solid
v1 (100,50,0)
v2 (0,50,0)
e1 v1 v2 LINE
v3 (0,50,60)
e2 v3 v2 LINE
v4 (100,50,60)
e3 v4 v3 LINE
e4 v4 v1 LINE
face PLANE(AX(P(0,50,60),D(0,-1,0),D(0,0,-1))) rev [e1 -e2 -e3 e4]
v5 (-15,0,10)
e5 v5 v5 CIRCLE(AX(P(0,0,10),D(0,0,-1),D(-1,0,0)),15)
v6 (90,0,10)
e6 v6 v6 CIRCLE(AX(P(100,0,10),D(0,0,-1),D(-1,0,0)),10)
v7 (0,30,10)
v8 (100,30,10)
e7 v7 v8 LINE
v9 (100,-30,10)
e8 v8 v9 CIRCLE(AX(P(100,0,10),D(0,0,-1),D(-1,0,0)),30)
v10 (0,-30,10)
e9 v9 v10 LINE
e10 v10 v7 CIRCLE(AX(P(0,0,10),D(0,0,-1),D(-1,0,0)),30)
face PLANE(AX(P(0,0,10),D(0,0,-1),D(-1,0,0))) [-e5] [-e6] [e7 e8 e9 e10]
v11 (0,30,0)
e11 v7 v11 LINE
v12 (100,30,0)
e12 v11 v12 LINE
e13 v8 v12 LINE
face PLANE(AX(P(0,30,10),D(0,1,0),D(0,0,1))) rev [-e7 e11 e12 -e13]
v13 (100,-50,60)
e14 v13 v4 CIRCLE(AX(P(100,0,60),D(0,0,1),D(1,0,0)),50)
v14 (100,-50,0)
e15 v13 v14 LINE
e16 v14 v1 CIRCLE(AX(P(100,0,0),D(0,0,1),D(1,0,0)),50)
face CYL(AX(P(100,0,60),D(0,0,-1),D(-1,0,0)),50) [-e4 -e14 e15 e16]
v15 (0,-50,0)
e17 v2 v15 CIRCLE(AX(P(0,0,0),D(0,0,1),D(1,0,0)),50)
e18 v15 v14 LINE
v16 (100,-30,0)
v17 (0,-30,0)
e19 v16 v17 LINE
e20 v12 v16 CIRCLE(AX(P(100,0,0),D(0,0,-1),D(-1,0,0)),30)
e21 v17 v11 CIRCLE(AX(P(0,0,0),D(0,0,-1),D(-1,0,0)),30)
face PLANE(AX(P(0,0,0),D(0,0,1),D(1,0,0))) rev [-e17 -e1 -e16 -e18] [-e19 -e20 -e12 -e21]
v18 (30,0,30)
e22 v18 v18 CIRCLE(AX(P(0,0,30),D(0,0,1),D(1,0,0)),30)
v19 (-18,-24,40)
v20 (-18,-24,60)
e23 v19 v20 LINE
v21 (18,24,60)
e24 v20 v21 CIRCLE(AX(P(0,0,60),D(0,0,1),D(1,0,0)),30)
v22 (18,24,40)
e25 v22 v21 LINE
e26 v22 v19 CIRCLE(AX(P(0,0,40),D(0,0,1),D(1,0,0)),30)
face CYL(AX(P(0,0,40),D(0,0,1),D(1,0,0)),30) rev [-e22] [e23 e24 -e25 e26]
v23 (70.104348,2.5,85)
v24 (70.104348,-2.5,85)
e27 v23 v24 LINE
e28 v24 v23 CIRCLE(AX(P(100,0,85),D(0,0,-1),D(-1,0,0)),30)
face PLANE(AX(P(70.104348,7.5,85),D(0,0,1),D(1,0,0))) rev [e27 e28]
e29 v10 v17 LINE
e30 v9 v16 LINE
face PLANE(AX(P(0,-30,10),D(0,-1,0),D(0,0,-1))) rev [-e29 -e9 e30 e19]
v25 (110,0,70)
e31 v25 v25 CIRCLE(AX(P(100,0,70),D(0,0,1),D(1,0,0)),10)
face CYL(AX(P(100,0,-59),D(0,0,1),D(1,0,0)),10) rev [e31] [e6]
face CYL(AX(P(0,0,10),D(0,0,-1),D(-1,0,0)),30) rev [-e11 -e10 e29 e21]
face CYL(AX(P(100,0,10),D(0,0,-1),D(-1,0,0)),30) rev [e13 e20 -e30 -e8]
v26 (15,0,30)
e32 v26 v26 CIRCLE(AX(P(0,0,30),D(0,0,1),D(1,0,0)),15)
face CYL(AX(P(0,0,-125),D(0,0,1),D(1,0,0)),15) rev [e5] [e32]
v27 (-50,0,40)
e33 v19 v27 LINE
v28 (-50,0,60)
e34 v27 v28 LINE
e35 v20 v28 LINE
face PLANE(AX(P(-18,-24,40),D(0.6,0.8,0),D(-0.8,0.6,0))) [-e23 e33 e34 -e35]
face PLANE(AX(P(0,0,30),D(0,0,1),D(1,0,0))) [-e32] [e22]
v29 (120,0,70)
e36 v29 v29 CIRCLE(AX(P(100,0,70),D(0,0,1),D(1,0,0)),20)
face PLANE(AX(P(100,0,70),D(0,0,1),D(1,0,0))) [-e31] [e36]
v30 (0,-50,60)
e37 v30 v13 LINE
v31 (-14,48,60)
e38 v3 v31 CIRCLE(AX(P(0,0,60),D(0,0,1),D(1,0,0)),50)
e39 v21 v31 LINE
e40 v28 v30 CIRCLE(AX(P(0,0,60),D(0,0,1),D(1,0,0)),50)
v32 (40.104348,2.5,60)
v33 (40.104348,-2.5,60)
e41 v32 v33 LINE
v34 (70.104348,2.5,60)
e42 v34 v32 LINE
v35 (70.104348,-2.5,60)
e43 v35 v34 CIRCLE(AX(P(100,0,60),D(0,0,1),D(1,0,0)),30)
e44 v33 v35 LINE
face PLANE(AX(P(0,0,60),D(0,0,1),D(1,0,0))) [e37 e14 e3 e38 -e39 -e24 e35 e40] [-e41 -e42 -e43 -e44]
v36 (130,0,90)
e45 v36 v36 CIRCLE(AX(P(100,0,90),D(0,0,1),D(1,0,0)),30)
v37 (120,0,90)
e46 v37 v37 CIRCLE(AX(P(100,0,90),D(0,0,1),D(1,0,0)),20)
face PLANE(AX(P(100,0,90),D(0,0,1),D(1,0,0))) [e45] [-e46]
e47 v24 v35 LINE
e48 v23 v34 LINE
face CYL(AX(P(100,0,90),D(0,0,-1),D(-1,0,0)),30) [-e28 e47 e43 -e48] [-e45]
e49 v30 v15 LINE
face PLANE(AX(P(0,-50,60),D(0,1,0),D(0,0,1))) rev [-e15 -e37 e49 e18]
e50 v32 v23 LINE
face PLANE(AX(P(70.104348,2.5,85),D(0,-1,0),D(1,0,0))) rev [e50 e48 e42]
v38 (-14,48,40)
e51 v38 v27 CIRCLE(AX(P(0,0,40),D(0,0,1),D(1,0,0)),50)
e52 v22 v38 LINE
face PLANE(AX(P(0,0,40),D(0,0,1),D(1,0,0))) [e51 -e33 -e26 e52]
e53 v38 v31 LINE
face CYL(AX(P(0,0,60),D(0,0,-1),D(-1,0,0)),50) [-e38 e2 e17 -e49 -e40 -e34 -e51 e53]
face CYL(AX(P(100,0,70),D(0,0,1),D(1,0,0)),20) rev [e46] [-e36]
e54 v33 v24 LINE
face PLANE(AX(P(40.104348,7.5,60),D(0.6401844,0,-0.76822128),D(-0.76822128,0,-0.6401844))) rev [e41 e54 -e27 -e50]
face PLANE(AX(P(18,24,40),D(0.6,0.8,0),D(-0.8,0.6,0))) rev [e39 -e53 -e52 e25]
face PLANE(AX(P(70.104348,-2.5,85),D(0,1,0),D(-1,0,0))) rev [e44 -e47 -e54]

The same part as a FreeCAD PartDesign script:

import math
import FreeCAD as App
import Part
import Sketcher

V = App.Vector
Q = App.Units.Quantity

doc = App.newDocument("Part")
params = doc.addObject("Spreadsheet::Sheet", "Params")
for row, (alias, value) in enumerate([
    ("sketch1_radius", "50 mm"),
    ("sketch1_width", "100 mm"),
    ("pad1_length", "60 mm"),
    ("sketch2_radius", "30 mm"),
    ("sketch2_width", "100 mm"),
    ("pocket1_length", "10 mm"),
    ("sketch3_diameter", "60 mm"),
    ("pad2_length", "30 mm"),
    ("sketch4_diameter", "40 mm"),
    ("pocket2_length", "20 mm"),
    ("sketch5_diameter", "20 mm"),
    ("pocket3_length", "129 mm"),
    ("sketch6_width", "30 mm"),
    ("sketch6_height", "5 mm"),
    ("pad3_length", "25 mm"),
    ("sketch7_radius", "50 mm"),
    ("sketch7_radius2", "30 mm"),
    ("pocket4_length", "20 mm"),
    ("sketch8_diameter", "60 mm"),
    ("pocket5_length", "10 mm"),
    ("sketch9_diameter", "30 mm"),
    ("pocket6_length", "155 mm"),
    ("sketch10_width", "30 mm"),
    ("sketch10_height", "25 mm"),
    ("pocket7_length", "10 mm"),
], start=1):
    params.set(f"A{row}", alias)
    params.set(f"B{row}", "=" + value)
    params.setAlias(f"B{row}", alias)

body = doc.addObject("PartDesign::Body", "Body")

# Sketch on XY plane
sketch1 = doc.addObject("Sketcher::SketchObject", "Sketch")
body.addObject(sketch1)
sketch1.AttachmentSupport = (doc.XY_Plane, [""])
sketch1.MapMode = "FlatFace"
sketch1.addGeometry([
    Part.LineSegment(V(100, 50, 0), V(0, 50, 0)),
    Part.ArcOfCircle(Part.Circle(V(0, 0, 0), V(0, 0, 1), 50), math.radians(90), math.radians(270)),
    Part.LineSegment(V(0, -50, 0), V(100, -50, 0)),
    Part.ArcOfCircle(Part.Circle(V(100, 0, 0), V(0, 0, 1), 50), math.radians(-90), math.radians(90)),
], False)
sketch1.addConstraint([
    Sketcher.Constraint("Tangent", 0, 2, 1, 1),
    Sketcher.Constraint("Tangent", 1, 2, 2, 1),
    Sketcher.Constraint("Tangent", 2, 2, 3, 1),
    Sketcher.Constraint("Tangent", 3, 2, 0, 1),
    Sketcher.Constraint("Horizontal", 0),
    Sketcher.Constraint("Horizontal", 2),
    Sketcher.Constraint("Coincident", 1, 3, -1, 1),
    Sketcher.Constraint("Radius", 1, Q("50 mm")),
    Sketcher.Constraint("DistanceX", 0, 2, 0, 1, Q("100 mm")),
])
sketch1.setExpression("Constraints[7]", "Params.sketch1_radius")
sketch1.setExpression("Constraints[8]", "Params.sketch1_width")
pad1 = doc.addObject("PartDesign::Pad", "Pad")
body.addObject(pad1)
pad1.Profile = sketch1
pad1.setExpression("Length", "Params.pad1_length")

# Sketch on XY plane
sketch2 = doc.addObject("Sketcher::SketchObject", "Sketch001")
body.addObject(sketch2)
sketch2.AttachmentSupport = (doc.XY_Plane, [""])
sketch2.MapMode = "FlatFace"
sketch2.addGeometry([
    Part.LineSegment(V(100, -30, 0), V(0, -30, 0)),
    Part.ArcOfCircle(Part.Circle(V(0, 0, 0), V(0, 0, 1), 30), math.radians(90), math.radians(270)),
    Part.LineSegment(V(0, 30, 0), V(100, 30, 0)),
    Part.ArcOfCircle(Part.Circle(V(100, 0, 0), V(0, 0, 1), 30), math.radians(-90), math.radians(90)),
], False)
sketch2.addConstraint([
    Sketcher.Constraint("Tangent", 0, 2, 1, 2),
    Sketcher.Constraint("Tangent", 1, 1, 2, 1),
    Sketcher.Constraint("Tangent", 2, 2, 3, 2),
    Sketcher.Constraint("Tangent", 3, 1, 0, 1),
    Sketcher.Constraint("Horizontal", 0),
    Sketcher.Constraint("Horizontal", 2),
    Sketcher.Constraint("Coincident", 1, 3, -1, 1),
    Sketcher.Constraint("Radius", 1, Q("30 mm")),
    Sketcher.Constraint("DistanceX", 0, 2, 0, 1, Q("100 mm")),
])
sketch2.setExpression("Constraints[7]", "Params.sketch2_radius")
sketch2.setExpression("Constraints[8]", "Params.sketch2_width")
pocket1 = doc.addObject("PartDesign::Pocket", "Pocket")
body.addObject(pocket1)
pocket1.Profile = sketch2
pocket1.setExpression("Length", "Params.pocket1_length")
pocket1.Reversed = True

# Sketch on XY plane
sketch3 = doc.addObject("Sketcher::SketchObject", "Sketch002")
body.addObject(sketch3)
sketch3.AttachmentSupport = (doc.XY_Plane, [""])
sketch3.MapMode = "FlatFace"
sketch3.AttachmentOffset = App.Placement(V(0, 0, 60), App.Rotation())
sketch3.addGeometry(Part.Circle(V(100, 0, 0), V(0, 0, 1), 30), False)
sketch3.addConstraint([
    Sketcher.Constraint("PointOnObject", 0, 3, -1),
    Sketcher.Constraint("Diameter", 0, Q("60 mm")),
    Sketcher.Constraint("DistanceX", -1, 1, 0, 3, Q("100 mm")),
])
sketch3.setExpression("Constraints[1]", "Params.sketch3_diameter")
pad2 = doc.addObject("PartDesign::Pad", "Pad001")
body.addObject(pad2)
pad2.Profile = sketch3
pad2.setExpression("Length", "Params.pad2_length")

# Sketch on XY plane
sketch4 = doc.addObject("Sketcher::SketchObject", "Sketch003")
body.addObject(sketch4)
sketch4.AttachmentSupport = (doc.XY_Plane, [""])
sketch4.MapMode = "FlatFace"
sketch4.AttachmentOffset = App.Placement(V(0, 0, 90), App.Rotation())
sketch4.addGeometry(Part.Circle(V(100, 0, 0), V(0, 0, 1), 20), False)
sketch4.addConstraint([
    Sketcher.Constraint("PointOnObject", 0, 3, -1),
    Sketcher.Constraint("Diameter", 0, Q("40 mm")),
    Sketcher.Constraint("DistanceX", -1, 1, 0, 3, Q("100 mm")),
])
sketch4.setExpression("Constraints[1]", "Params.sketch4_diameter")
pocket2 = doc.addObject("PartDesign::Pocket", "Pocket001")
body.addObject(pocket2)
pocket2.Profile = sketch4
pocket2.setExpression("Length", "Params.pocket2_length")

# Sketch on XY plane
sketch5 = doc.addObject("Sketcher::SketchObject", "Sketch004")
body.addObject(sketch5)
sketch5.AttachmentSupport = (doc.XY_Plane, [""])
sketch5.MapMode = "FlatFace"
sketch5.AttachmentOffset = App.Placement(V(0, 0, 70), App.Rotation())
sketch5.addGeometry(Part.Circle(V(100, 0, 0), V(0, 0, 1), 10), False)
sketch5.addConstraint([
    Sketcher.Constraint("PointOnObject", 0, 3, -1),
    Sketcher.Constraint("Diameter", 0, Q("20 mm")),
    Sketcher.Constraint("DistanceX", -1, 1, 0, 3, Q("100 mm")),
])
sketch5.setExpression("Constraints[1]", "Params.sketch5_diameter")
pocket3 = doc.addObject("PartDesign::Pocket", "Pocket002")
body.addObject(pocket3)
pocket3.Profile = sketch5
pocket3.setExpression("Length", "Params.pocket3_length")

# Sketch on XY plane
sketch6 = doc.addObject("Sketcher::SketchObject", "Sketch005")
body.addObject(sketch6)
sketch6.AttachmentSupport = (doc.XY_Plane, [""])
sketch6.MapMode = "FlatFace"
sketch6.AttachmentOffset = App.Placement(V(0, 0, 60), App.Rotation())
sketch6.addGeometry([
    Part.LineSegment(V(40, 2, 0), V(40, -2, 0)),
    Part.LineSegment(V(40, -2, 0), V(70, -2, 0)),
    Part.LineSegment(V(70, -2, 0), V(70, 2, 0)),
    Part.LineSegment(V(70, 2, 0), V(40, 2, 0)),
], False)
sketch6.addConstraint([
    Sketcher.Constraint("Coincident", 0, 2, 1, 1),
    Sketcher.Constraint("Coincident", 1, 2, 2, 1),
    Sketcher.Constraint("Coincident", 2, 2, 3, 1),
    Sketcher.Constraint("Coincident", 3, 2, 0, 1),
    Sketcher.Constraint("Vertical", 0),
    Sketcher.Constraint("Horizontal", 1),
    Sketcher.Constraint("Vertical", 2),
    Sketcher.Constraint("Horizontal", 3),
    Sketcher.Constraint("DistanceX", 1, 1, 1, 2, Q("30 mm")),
    Sketcher.Constraint("DistanceY", 0, 2, 0, 1, Q("5 mm")),
    Sketcher.Constraint("DistanceY", 0, 2, -1, 1, Q("2.5 mm")),
    Sketcher.Constraint("DistanceX", -1, 1, 0, 2, Q("40.104348 mm")),
])
sketch6.setExpression("Constraints[8]", "Params.sketch6_width")
sketch6.setExpression("Constraints[9]", "Params.sketch6_height")
pad3 = doc.addObject("PartDesign::Pad", "Pad002")
body.addObject(pad3)
pad3.Profile = sketch6
pad3.setExpression("Length", "Params.pad3_length")

# Sketch on XY plane
sketch7 = doc.addObject("Sketcher::SketchObject", "Sketch006")
body.addObject(sketch7)
sketch7.AttachmentSupport = (doc.XY_Plane, [""])
sketch7.MapMode = "FlatFace"
sketch7.AttachmentOffset = App.Placement(V(0, 0, 60), App.Rotation())
sketch7.addGeometry([
    Part.ArcOfCircle(Part.Circle(V(0, 0, 0), V(0, 0, 1), 50), math.radians(106), math.radians(180)),
    Part.LineSegment(V(-50, 0, 0), V(-18, -24, 0)),
    Part.ArcOfCircle(Part.Circle(V(0, 0, 0), V(0, 0, 1), 30), math.radians(-127), math.radians(53)),
    Part.LineSegment(V(18, 24, 0), V(-14, 48, 0)),
], False)
sketch7.addConstraint([
    Sketcher.Constraint("Coincident", 0, 2, 1, 1),
    Sketcher.Constraint("Tangent", 1, 2, 2, 1),
    Sketcher.Constraint("Tangent", 2, 2, 3, 1),
    Sketcher.Constraint("Coincident", 3, 2, 0, 1),
    Sketcher.Constraint("Coincident", 0, 3, -1, 1),
    Sketcher.Constraint("Coincident", 2, 3, -1, 1),
    Sketcher.Constraint("PointOnObject", 0, 2, -1),
    Sketcher.Constraint("Parallel", 1, 3),
    Sketcher.Constraint("Radius", 0, Q("50 mm")),
    Sketcher.Constraint("Radius", 2, Q("30 mm")),
])
sketch7.setExpression("Constraints[8]", "Params.sketch7_radius")
sketch7.setExpression("Constraints[9]", "Params.sketch7_radius2")
pocket4 = doc.addObject("PartDesign::Pocket", "Pocket003")
body.addObject(pocket4)
pocket4.Profile = sketch7
pocket4.setExpression("Length", "Params.pocket4_length")

# Sketch on XY plane
sketch8 = doc.addObject("Sketcher::SketchObject", "Sketch007")
body.addObject(sketch8)
sketch8.AttachmentSupport = (doc.XY_Plane, [""])
sketch8.MapMode = "FlatFace"
sketch8.AttachmentOffset = App.Placement(V(0, 0, 40), App.Rotation())
sketch8.addGeometry(Part.Circle(V(0, 0, 0), V(0, 0, 1), 30), False)
sketch8.addConstraint([
    Sketcher.Constraint("Coincident", 0, 3, -1, 1),
    Sketcher.Constraint("Diameter", 0, Q("60 mm")),
])
sketch8.setExpression("Constraints[1]", "Params.sketch8_diameter")
pocket5 = doc.addObject("PartDesign::Pocket", "Pocket004")
body.addObject(pocket5)
pocket5.Profile = sketch8
pocket5.setExpression("Length", "Params.pocket5_length")

# Sketch on XY plane
sketch9 = doc.addObject("Sketcher::SketchObject", "Sketch008")
body.addObject(sketch9)
sketch9.AttachmentSupport = (doc.XY_Plane, [""])
sketch9.MapMode = "FlatFace"
sketch9.AttachmentOffset = App.Placement(V(0, 0, 30), App.Rotation())
sketch9.addGeometry(Part.Circle(V(0, 0, 0), V(0, 0, 1), 15), False)
sketch9.addConstraint([
    Sketcher.Constraint("Coincident", 0, 3, -1, 1),
    Sketcher.Constraint("Diameter", 0, Q("30 mm")),
])
sketch9.setExpression("Constraints[1]", "Params.sketch9_diameter")
pocket6 = doc.addObject("PartDesign::Pocket", "Pocket005")
body.addObject(pocket6)
pocket6.Profile = sketch9
pocket6.setExpression("Length", "Params.pocket6_length")

# Sketch on XZ plane
sketch10 = doc.addObject("Sketcher::SketchObject", "Sketch009")
body.addObject(sketch10)
sketch10.AttachmentSupport = (doc.XZ_Plane, [""])
sketch10.MapMode = "FlatFace"
sketch10.AttachmentOffset = App.Placement(V(0, 0, 2.5), App.Rotation())
sketch10.addGeometry([
    Part.LineSegment(V(40, 60, 0), V(70, 85, 0)),
    Part.LineSegment(V(70, 85, 0), V(40, 85, 0)),
    Part.LineSegment(V(40, 85, 0), V(40, 60, 0)),
], False)
sketch10.addConstraint([
    Sketcher.Constraint("Coincident", 0, 2, 1, 1),
    Sketcher.Constraint("Coincident", 1, 2, 2, 1),
    Sketcher.Constraint("Coincident", 2, 2, 0, 1),
    Sketcher.Constraint("Horizontal", 1),
    Sketcher.Constraint("Vertical", 2),
    Sketcher.Constraint("DistanceX", 1, 2, 1, 1, Q("30 mm")),
    Sketcher.Constraint("DistanceY", 2, 2, 2, 1, Q("25 mm")),
    Sketcher.Constraint("DistanceY", -1, 1, 0, 2, Q("85 mm")),
    Sketcher.Constraint("DistanceX", -1, 1, 0, 2, Q("70.104348 mm")),
])
sketch10.setExpression("Constraints[5]", "Params.sketch10_width")
sketch10.setExpression("Constraints[6]", "Params.sketch10_height")
pocket7 = doc.addObject("PartDesign::Pocket", "Pocket006")
body.addObject(pocket7)
pocket7.Profile = sketch10
pocket7.setExpression("Length", "Params.pocket7_length")

doc.recompute()
